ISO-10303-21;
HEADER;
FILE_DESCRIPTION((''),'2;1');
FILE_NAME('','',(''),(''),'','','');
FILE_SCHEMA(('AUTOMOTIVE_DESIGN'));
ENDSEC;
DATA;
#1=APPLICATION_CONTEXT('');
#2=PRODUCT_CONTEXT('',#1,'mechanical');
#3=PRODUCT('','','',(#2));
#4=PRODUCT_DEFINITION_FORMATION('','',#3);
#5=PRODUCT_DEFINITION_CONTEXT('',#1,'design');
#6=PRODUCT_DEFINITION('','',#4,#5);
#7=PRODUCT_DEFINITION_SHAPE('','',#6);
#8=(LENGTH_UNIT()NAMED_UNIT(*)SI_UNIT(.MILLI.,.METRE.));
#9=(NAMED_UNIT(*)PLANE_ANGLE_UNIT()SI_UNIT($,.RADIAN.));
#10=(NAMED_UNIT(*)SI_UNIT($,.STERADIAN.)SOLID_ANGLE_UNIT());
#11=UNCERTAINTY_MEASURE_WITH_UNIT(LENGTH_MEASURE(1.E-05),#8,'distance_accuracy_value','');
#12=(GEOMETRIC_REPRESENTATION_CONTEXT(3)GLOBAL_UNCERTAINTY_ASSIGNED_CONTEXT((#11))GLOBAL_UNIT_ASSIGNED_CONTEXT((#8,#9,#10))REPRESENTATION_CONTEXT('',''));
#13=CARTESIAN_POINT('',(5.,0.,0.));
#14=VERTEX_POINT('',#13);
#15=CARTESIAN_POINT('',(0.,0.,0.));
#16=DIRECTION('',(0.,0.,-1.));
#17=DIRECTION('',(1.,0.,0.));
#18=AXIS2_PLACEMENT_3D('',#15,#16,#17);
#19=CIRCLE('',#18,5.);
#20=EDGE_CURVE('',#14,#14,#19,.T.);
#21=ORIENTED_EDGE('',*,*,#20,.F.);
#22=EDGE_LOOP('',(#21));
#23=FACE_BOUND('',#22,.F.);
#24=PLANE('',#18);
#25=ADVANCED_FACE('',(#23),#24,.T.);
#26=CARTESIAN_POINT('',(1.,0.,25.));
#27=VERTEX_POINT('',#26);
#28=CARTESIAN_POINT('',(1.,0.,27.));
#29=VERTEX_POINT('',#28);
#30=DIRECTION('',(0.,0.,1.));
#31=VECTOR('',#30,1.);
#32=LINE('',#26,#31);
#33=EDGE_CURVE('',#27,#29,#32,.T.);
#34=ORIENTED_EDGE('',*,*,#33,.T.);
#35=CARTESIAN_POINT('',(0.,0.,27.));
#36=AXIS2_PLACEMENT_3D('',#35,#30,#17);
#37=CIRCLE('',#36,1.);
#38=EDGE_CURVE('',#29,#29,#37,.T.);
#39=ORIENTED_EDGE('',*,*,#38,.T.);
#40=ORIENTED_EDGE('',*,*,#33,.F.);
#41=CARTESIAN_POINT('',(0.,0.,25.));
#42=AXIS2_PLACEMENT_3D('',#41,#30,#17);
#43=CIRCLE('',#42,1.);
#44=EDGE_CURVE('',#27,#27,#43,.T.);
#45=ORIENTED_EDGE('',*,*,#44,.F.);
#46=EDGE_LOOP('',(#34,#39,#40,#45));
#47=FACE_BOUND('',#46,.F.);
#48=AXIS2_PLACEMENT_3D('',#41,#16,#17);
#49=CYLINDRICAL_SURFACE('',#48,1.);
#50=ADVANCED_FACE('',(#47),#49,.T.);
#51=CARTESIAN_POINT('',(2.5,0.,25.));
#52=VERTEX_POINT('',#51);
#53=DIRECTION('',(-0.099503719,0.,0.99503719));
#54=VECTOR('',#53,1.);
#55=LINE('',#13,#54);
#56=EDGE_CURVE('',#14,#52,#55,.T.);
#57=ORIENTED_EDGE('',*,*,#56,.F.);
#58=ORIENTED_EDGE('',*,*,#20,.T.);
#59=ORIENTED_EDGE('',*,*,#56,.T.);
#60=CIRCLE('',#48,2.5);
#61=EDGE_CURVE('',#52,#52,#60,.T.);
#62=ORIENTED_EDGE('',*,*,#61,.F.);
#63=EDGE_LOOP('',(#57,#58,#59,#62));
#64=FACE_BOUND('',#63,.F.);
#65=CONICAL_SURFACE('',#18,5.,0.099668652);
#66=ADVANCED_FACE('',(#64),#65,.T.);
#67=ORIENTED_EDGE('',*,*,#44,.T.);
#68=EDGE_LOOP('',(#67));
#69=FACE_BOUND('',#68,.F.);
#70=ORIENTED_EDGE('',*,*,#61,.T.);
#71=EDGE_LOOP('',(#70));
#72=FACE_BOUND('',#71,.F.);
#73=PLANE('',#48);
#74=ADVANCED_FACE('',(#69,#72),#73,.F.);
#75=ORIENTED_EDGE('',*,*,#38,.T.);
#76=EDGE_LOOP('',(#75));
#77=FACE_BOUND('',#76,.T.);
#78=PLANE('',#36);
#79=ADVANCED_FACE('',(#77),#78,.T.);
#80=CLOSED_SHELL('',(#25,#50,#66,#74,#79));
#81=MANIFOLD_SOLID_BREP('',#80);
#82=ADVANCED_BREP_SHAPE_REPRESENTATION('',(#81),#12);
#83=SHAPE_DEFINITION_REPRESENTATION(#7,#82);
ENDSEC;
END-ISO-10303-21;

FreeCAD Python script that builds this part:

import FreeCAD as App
import Part
import Sketcher
from FreeCAD import Vector
Q = App.Units.Quantity

doc = App.newDocument("Part")
body = doc.addObject("PartDesign::Body", "Body")

sketch1 = doc.addObject("Sketcher::SketchObject", "Sketch")
body.addObject(sketch1)
sketch1.AttachmentSupport = (doc.XZ_Plane, [""])
sketch1.MapMode = "FlatFace"
sketch1.addGeometry(Part.LineSegment(Vector(0, 25, 0), Vector(0, 0, 0)), False)
sketch1.addGeometry(Part.LineSegment(Vector(0, 0, 0), Vector(5, 0, 0)), False)
sketch1.addGeometry(Part.LineSegment(Vector(5, 0, 0), Vector(2.5, 25, 0)), False)
sketch1.addGeometry(Part.LineSegment(Vector(2.5, 25, 0), Vector(0, 25, 0)), False)
sketch1.addConstraint(Sketcher.Constraint("Coincident", 0, 2, 1, 1))
sketch1.addConstraint(Sketcher.Constraint("Coincident", 1, 2, 2, 1))
sketch1.addConstraint(Sketcher.Constraint("Coincident", 2, 2, 3, 1))
sketch1.addConstraint(Sketcher.Constraint("Coincident", 3, 2, 0, 1))
sketch1.addConstraint(Sketcher.Constraint("Vertical", 0))
sketch1.addConstraint(Sketcher.Constraint("Horizontal", 1))
sketch1.addConstraint(Sketcher.Constraint("Horizontal", 3))
sketch1.addConstraint(Sketcher.Constraint("Coincident", 0, 2, -1, 1))
sketch1.addConstraint(Sketcher.Constraint("DistanceX", 1, 1, 1, 2, Q("5 mm")))
sketch1.addConstraint(Sketcher.Constraint("DistanceY", 0, 2, 0, 1, Q("25 mm")))
sketch1.addConstraint(Sketcher.Constraint("DistanceX", 3, 2, 3, 1, Q("2.5 mm")))
revolution = doc.addObject("PartDesign::Revolution", "Revolution")
body.addObject(revolution)
revolution.Profile = sketch1
revolution.ReferenceAxis = (sketch1, ["V_Axis"])
revolution.Angle = 360

sketch2 = doc.addObject("Sketcher::SketchObject", "Sketch001")
body.addObject(sketch2)
sketch2.AttachmentSupport = (doc.XY_Plane, [""])
sketch2.MapMode = "FlatFace"
sketch2.AttachmentOffset = App.Placement(Vector(0, 0, 25), App.Rotation())
sketch2.addGeometry(Part.Circle(Vector(0, 0, 0), Vector(0, 0, 1), 1), False)
sketch2.addConstraint(Sketcher.Constraint("Coincident", 0, 3, -1, 1))
sketch2.addConstraint(Sketcher.Constraint("Diameter", 0, Q("2 mm")))
pad1 = doc.addObject("PartDesign::Pad", "Pad")
body.addObject(pad1)
pad1.Profile = sketch2
pad1.Length = 2

doc.recompute()
